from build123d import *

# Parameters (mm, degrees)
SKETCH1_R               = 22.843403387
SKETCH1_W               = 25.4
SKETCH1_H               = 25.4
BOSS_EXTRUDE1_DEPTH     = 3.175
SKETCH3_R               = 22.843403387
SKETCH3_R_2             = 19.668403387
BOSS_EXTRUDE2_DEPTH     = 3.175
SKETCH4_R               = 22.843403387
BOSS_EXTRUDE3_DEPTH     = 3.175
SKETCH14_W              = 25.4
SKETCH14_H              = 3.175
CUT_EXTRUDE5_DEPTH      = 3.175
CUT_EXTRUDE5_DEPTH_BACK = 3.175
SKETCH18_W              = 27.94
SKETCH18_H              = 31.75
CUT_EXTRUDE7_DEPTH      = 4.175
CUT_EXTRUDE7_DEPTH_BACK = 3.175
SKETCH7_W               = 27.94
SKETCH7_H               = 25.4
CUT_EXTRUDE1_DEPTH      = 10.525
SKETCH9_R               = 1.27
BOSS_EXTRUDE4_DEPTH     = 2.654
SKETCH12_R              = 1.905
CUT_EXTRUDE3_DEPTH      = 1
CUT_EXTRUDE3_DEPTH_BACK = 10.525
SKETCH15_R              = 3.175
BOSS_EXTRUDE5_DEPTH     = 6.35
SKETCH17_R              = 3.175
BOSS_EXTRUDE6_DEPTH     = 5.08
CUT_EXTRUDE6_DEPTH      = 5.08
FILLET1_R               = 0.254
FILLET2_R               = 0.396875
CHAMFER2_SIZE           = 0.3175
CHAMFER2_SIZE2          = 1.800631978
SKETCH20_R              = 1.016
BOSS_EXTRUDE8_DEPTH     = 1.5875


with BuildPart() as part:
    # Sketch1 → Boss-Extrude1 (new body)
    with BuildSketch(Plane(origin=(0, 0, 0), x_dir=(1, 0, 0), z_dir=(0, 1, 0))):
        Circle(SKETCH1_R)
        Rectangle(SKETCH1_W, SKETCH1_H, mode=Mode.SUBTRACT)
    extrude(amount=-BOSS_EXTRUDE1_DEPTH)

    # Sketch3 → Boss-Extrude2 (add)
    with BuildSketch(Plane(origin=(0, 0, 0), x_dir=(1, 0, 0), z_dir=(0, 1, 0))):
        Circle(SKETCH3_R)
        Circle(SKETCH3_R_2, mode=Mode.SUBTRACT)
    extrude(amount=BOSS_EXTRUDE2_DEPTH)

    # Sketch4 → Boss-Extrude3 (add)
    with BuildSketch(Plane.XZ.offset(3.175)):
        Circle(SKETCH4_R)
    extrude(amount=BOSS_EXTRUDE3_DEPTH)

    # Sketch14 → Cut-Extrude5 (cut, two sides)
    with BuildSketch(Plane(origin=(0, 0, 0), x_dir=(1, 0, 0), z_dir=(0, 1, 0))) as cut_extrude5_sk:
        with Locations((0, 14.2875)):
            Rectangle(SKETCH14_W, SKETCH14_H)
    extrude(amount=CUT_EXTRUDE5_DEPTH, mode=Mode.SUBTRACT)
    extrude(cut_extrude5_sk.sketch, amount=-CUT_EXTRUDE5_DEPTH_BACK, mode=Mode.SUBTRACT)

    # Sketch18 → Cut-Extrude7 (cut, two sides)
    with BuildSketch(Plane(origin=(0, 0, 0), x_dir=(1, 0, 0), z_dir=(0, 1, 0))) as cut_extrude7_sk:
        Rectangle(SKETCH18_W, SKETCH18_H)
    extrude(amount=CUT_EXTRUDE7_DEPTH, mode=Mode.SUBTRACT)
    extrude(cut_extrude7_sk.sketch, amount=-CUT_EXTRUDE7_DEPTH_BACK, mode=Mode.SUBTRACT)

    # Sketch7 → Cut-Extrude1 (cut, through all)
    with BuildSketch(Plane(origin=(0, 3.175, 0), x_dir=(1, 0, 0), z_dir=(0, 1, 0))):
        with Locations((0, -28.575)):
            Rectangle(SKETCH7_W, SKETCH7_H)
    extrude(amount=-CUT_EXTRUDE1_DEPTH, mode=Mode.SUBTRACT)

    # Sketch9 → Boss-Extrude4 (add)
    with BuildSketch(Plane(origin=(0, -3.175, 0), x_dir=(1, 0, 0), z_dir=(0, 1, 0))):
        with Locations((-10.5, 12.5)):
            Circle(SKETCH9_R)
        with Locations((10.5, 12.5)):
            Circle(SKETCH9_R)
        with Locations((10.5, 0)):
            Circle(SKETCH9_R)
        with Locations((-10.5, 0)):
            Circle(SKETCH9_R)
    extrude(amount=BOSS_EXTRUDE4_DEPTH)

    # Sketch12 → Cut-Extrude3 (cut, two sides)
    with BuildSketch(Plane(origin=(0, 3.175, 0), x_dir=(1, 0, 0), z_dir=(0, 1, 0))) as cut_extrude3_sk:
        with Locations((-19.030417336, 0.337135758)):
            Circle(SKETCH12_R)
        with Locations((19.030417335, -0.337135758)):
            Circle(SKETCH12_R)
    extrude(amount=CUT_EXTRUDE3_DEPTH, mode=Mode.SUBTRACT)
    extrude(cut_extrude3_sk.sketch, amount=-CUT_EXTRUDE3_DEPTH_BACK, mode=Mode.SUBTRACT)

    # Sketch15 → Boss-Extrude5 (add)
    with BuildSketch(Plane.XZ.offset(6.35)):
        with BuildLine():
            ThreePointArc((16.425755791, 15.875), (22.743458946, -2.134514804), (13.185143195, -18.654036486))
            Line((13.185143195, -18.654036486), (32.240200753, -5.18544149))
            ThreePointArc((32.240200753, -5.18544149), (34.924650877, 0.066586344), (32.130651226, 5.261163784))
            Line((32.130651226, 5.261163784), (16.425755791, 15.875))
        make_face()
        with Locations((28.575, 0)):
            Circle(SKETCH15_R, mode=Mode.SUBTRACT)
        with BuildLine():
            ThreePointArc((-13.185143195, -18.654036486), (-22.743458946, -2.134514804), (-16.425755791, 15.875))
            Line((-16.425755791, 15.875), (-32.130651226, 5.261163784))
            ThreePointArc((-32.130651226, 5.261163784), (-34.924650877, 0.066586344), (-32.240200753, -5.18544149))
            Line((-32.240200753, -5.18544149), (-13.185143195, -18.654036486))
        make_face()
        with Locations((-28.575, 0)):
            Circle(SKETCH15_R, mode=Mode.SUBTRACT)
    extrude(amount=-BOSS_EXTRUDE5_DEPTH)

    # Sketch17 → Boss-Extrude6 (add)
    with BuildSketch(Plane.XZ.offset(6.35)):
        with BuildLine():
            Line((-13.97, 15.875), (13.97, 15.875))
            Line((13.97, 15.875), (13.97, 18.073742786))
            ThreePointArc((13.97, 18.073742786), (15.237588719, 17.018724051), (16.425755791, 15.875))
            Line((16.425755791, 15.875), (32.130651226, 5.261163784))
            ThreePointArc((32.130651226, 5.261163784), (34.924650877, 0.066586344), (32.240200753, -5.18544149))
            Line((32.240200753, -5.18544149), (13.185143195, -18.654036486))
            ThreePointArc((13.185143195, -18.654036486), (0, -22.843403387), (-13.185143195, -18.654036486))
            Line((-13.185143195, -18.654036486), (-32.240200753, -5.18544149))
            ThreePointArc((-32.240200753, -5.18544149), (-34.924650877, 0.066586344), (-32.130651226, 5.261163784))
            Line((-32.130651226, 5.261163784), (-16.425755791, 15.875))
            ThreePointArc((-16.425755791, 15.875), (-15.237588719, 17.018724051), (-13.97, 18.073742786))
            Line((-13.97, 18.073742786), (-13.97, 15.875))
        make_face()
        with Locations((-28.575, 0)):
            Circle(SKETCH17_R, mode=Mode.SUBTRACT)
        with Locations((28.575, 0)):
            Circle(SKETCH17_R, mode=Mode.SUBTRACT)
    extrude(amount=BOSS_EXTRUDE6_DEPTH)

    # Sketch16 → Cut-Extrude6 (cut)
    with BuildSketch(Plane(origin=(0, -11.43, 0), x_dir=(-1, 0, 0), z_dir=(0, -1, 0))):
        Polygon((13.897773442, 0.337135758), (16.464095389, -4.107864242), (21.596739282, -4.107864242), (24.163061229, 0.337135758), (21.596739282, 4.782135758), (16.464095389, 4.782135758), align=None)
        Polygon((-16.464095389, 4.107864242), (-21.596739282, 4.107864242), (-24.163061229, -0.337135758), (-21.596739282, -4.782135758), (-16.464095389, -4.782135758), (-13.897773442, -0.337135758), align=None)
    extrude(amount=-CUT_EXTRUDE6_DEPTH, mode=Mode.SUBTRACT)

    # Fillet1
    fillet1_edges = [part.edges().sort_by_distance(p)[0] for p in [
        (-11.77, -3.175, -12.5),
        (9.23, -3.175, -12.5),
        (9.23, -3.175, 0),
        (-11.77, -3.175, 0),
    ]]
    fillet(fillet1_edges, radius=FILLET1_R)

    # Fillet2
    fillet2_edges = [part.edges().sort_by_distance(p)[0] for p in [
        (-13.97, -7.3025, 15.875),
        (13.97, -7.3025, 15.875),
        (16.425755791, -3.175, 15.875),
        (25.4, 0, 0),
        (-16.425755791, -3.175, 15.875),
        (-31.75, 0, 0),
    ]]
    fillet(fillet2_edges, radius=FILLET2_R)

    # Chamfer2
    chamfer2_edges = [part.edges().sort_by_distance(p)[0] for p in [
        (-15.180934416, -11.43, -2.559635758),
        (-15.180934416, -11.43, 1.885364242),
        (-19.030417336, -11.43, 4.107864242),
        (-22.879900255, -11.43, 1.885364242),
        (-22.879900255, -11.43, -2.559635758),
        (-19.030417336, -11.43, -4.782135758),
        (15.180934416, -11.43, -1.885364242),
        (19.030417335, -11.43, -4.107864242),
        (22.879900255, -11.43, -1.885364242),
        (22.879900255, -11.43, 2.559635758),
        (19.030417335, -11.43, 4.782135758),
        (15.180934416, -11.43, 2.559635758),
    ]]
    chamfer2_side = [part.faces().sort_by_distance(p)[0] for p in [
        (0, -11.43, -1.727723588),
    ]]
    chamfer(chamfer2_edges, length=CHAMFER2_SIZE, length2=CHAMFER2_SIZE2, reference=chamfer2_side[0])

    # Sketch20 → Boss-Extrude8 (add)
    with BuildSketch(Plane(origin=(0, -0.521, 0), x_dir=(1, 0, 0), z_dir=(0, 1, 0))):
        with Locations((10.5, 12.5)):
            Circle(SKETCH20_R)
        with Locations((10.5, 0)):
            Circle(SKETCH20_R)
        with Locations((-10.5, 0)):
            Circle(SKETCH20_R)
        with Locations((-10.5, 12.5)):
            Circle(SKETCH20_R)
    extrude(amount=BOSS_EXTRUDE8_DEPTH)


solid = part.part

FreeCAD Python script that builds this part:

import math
import FreeCAD as App
import Part
import Sketcher
from FreeCAD import Vector
Q = App.Units.Quantity


def edges_at(feature, points):
    """Names of the edges that pass closest to the given points."""
    edges = feature.Shape.Edges
    near = lambda p: min(range(len(edges)), key=lambda i: edges[i].distToShape(Part.Vertex(*p))[0])
    return sorted({f"Edge{near(p) + 1}" for p in points})


def add_polygon(sketch, points):
    """Adds a closed chain of lines whose ends are joined by coincident constraints."""
    first, n = sketch.GeometryCount, len(points)
    for a, b in zip(points, points[1:] + points[:1]):
        sketch.addGeometry(Part.LineSegment(App.Vector(*a, 0), App.Vector(*b, 0)), False)
    for i in range(n):
        sketch.addConstraint(Sketcher.Constraint("Coincident", first + i, 2, first + (i + 1) % n, 1))

doc = App.newDocument("Part")
params = doc.addObject("Spreadsheet::Sheet", "Params")
for row, (alias, value) in enumerate([
    ("sketch1_width", "1 in"),
    ("pad1_length", "0.125 in"),
    ("pad2_length", "0.125 in"),
    ("pad3_length", "0.125 in"),
    ("sketch4_width", "1 in"),
    ("sketch4_height", "0.125 in"),
    ("pocket1_length", "0.125 in"),
    ("pocket1_length2", "0.125 in"),
    ("sketch5_width", "1.1 in"),
    ("sketch5_height", "1.25 in"),
    ("pocket2_length", "4.175 mm"),
    ("pocket2_length2", "0.125 in"),
    ("sketch6_height", "1 in"),
    ("sketch6_width", "1.1 in"),
    ("sketch7_diameter", "0.1 in"),
    ("pad4_length", "2.654 mm"),
    ("sketch8_diameter", "0.15 in"),
    ("sketch9_diameter", "0.25 in"),
    ("sketch9_radius", "0.25 in"),
    ("pad5_length", "0.25 in"),
    ("sketch10_diameter", "0.25 in"),
    ("sketch10_radius", "0.25 in"),
    ("sketch10_width", "1.1 in"),
    ("pad6_length", "0.2 in"),
    ("pocket5_length", "0.2 in"),
    ("fillet_radius", "0.01 in"),
    ("fillet2_radius", "0.015625 in"),
    ("chamfer_size", "0.0125 in"),
    ("chamfer_size2", "1.800632 mm"),
    ("sketch12_diameter", "0.08 in"),
    ("pad7_length", "0.0625 in"),
], start=1):
    params.set(f"A{row}", alias)
    params.set(f"B{row}", "=" + value)
    params.setAlias(f"B{row}", alias)

body = doc.addObject("PartDesign::Body", "Body")

# Sketch on XZ plane
sketch1 = body.newObject("Sketcher::SketchObject", "Sketch")
sketch1.AttachmentSupport = (doc.getObject("XZ_Plane"), [""])
sketch1.MapMode = "FlatFace"
sketch1.addGeometry(Part.Circle(Vector(0, 0, 0), Vector(0, 0, 1), 23), False)  # 0
add_polygon(sketch1, [(13, 13), (-13, 13), (-13, -13), (13, -13)])  # lines 1-4
sketch1.addConstraint([
    Sketcher.Constraint("Horizontal", 1),
    Sketcher.Constraint("Vertical", 2),
    Sketcher.Constraint("Horizontal", 3),
    Sketcher.Constraint("Vertical", 4),
    Sketcher.Constraint("Coincident", 0, 3, -1, 1),
    Sketcher.Constraint("Symmetric", 1, 2, 3, 2, -1, 1),
    Sketcher.Constraint("Equal", 3, 2),
    Sketcher.Constraint("DistanceX", 1, 2, 1, 1, Q("1 in")),
    Sketcher.Constraint("Diameter", 0, 45.686807),
])
sketch1.setExpression("Constraints[11]", "Params.sketch1_width")
pad1 = body.newObject("PartDesign::Pad", "Pad")
pad1.Profile = sketch1
pad1.setExpression("Length", "Params.pad1_length")

# Sketch on XZ plane
sketch2 = body.newObject("Sketcher::SketchObject", "Sketch001")
sketch2.AttachmentSupport = (doc.getObject("XZ_Plane"), [""])
sketch2.MapMode = "FlatFace"
sketch2.addGeometry([
    Part.Circle(Vector(0, 0, 0), Vector(0, 0, 1), 23),
    Part.Circle(Vector(0, 0, 0), Vector(0, 0, 1), 20),
], False)
sketch2.addConstraint([
    Sketcher.Constraint("Coincident", 0, 3, -1, 1),
    Sketcher.Constraint("Coincident", 1, 3, -1, 1),
    Sketcher.Constraint("Diameter", 0, 45.686807),
    Sketcher.Constraint("Diameter", 1, 39.336807),
])
pad2 = body.newObject("PartDesign::Pad", "Pad001")
pad2.Profile = sketch2
pad2.setExpression("Length", "Params.pad2_length")
pad2.Reversed = True

# Sketch on XZ plane
sketch3 = body.newObject("Sketcher::SketchObject", "Sketch002")
sketch3.AttachmentSupport = (doc.getObject("XZ_Plane"), [""])
sketch3.MapMode = "FlatFace"
sketch3.AttachmentOffset = App.Placement(Vector(0, 0, 0.125 * 25.4), App.Rotation())
sketch3.addGeometry(Part.Circle(Vector(0, 0, 0), Vector(0, 0, 1), 23), False)
sketch3.addConstraint([
    Sketcher.Constraint("Coincident", 0, 3, -1, 1),
    Sketcher.Constraint("Diameter", 0, 45.686807),
])
pad3 = body.newObject("PartDesign::Pad", "Pad002")
pad3.Profile = sketch3
pad3.setExpression("Length", "Params.pad3_length")

# Sketch on XZ plane
sketch4 = body.newObject("Sketcher::SketchObject", "Sketch003")
sketch4.AttachmentSupport = (doc.getObject("XZ_Plane"), [""])
sketch4.MapMode = "FlatFace"
add_polygon(sketch4, [(-12.7, -15.9), (-12.7, -12.7), (12.7, -12.7), (12.7, -15.9)])  # lines 0-3
sketch4.addConstraint([
    Sketcher.Constraint("Vertical", 0),
    Sketcher.Constraint("Horizontal", 1),
    Sketcher.Constraint("Vertical", 2),
    Sketcher.Constraint("Horizontal", 3),
    Sketcher.Constraint("DistanceX", 1, 1, 1, 2, Q("1 in")),
    Sketcher.Constraint("DistanceX", 0, 2, -1, 1, Q("0.5 in")),
    Sketcher.Constraint("DistanceY", 0, 2, -1, 1, Q("0.5 in")),
    Sketcher.Constraint("DistanceY", 0, 1, 0, 2, Q("0.125 in")),
])
sketch4.setExpression("Constraints[8]", "Params.sketch4_width")
sketch4.setExpression("Constraints[11]", "Params.sketch4_height")
pocket1 = body.newObject("PartDesign::Pocket", "Pocket")
pocket1.Profile = sketch4
pocket1.Type = "TwoLengths"
pocket1.setExpression("Length", "Params.pocket1_length")
pocket1.setExpression("Length2", "Params.pocket1_length2")

# Sketch on XZ plane
sketch5 = body.newObject("Sketcher::SketchObject", "Sketch004")
sketch5.AttachmentSupport = (doc.getObject("XZ_Plane"), [""])
sketch5.MapMode = "FlatFace"
add_polygon(sketch5, [(-14, -16), (-14, 16), (14, 16), (14, -16)])  # lines 0-3
sketch5.addConstraint([
    Sketcher.Constraint("Vertical", 0),
    Sketcher.Constraint("Horizontal", 1),
    Sketcher.Constraint("Vertical", 2),
    Sketcher.Constraint("Horizontal", 3),
    Sketcher.Constraint("Symmetric", 0, 2, 2, 2, -1, 1),
    Sketcher.Constraint("DistanceX", 1, 1, 1, 2, Q("1.1 in")),
    Sketcher.Constraint("DistanceY", 0, 1, 0, 2, Q("1.25 in")),
])
sketch5.setExpression("Constraints[9]", "Params.sketch5_width")
sketch5.setExpression("Constraints[10]", "Params.sketch5_height")
pocket2 = body.newObject("PartDesign::Pocket", "Pocket001")
pocket2.Profile = sketch5
pocket2.Type = "TwoLengths"
pocket2.setExpression("Length", "Params.pocket2_length")
pocket2.setExpression("Length2", "Params.pocket2_length2")

# Sketch on XZ plane
sketch6 = body.newObject("Sketcher::SketchObject", "Sketch005")
sketch6.AttachmentSupport = (doc.getObject("XZ_Plane"), [""])
sketch6.MapMode = "FlatFace"
sketch6.AttachmentOffset = App.Placement(Vector(0, 0, -0.125 * 25.4), App.Rotation())
add_polygon(sketch6, [(-14, 16), (-14, 41), (14, 41), (14, 16)])  # lines 0-3
sketch6.addConstraint([
    Sketcher.Constraint("Vertical", 0),
    Sketcher.Constraint("Horizontal", 1),
    Sketcher.Constraint("Vertical", 2),
    Sketcher.Constraint("Horizontal", 3),
    Sketcher.Constraint("DistanceY", 0, 1, 0, 2, Q("1 in")),
    Sketcher.Constraint("DistanceX", 1, 1, 1, 2, Q("1.1 in")),
    Sketcher.Constraint("DistanceX", 0, 2, -1, 1, Q("0.55 in")),
    Sketcher.Constraint("DistanceY", -1, 1, 0, 2, Q("1.625 in")),
])
sketch6.setExpression("Constraints[8]", "Params.sketch6_height")
sketch6.setExpression("Constraints[9]", "Params.sketch6_width")
pocket3 = body.newObject("PartDesign::Pocket", "Pocket002")
pocket3.Profile = sketch6
pocket3.Type = "ThroughAll"
pocket3.Reversed = True

# Sketch on XZ plane
sketch7 = body.newObject("Sketcher::SketchObject", "Sketch006")
sketch7.AttachmentSupport = (doc.getObject("XZ_Plane"), [""])
sketch7.MapMode = "FlatFace"
sketch7.AttachmentOffset = App.Placement(Vector(0, 0, 0.125 * 25.4), App.Rotation())
sketch7.addGeometry([
    Part.Circle(Vector(-10.5, -12.5, 0), Vector(0, 0, 1), 1.3),
    Part.Circle(Vector(10.5, -12.5, 0), Vector(0, 0, 1), 1.3),
    Part.Circle(Vector(10.5, 0, 0), Vector(0, 0, 1), 1.3),
    Part.Circle(Vector(-10.5, 0, 0), Vector(0, 0, 1), 1.3),
], False)
sketch7.addConstraint([
    Sketcher.Constraint("Equal", 0, 1),
    Sketcher.Constraint("Equal", 1, 2),
    Sketcher.Constraint("Equal", 2, 3),
    Sketcher.Constraint("Symmetric", 2, 3, 3, 3, -1, 1),
    Sketcher.Constraint("Symmetric", 0, 3, 1, 3, -2),
    Sketcher.Constraint("PointOnObject", 2, 3, -1),
    Sketcher.Constraint("Vertical", 1, 3, 2, 3),
    Sketcher.Constraint("Diameter", 0, Q("0.1 in")),
    Sketcher.Constraint("DistanceX", 0, 3, -1, 1, 10.5),
    Sketcher.Constraint("DistanceY", 0, 3, -1, 1, 12.5),
])
sketch7.setExpression("Constraints[7]", "Params.sketch7_diameter")
pad4 = body.newObject("PartDesign::Pad", "Pad003")
pad4.Profile = sketch7
pad4.setExpression("Length", "Params.pad4_length")
pad4.Reversed = True

# Sketch on XZ plane
sketch8 = body.newObject("Sketcher::SketchObject", "Sketch007")
sketch8.AttachmentSupport = (doc.getObject("XZ_Plane"), [""])
sketch8.MapMode = "FlatFace"
sketch8.AttachmentOffset = App.Placement(Vector(0, 0, -0.125 * 25.4), App.Rotation())
sketch8.addGeometry([
    Part.Circle(Vector(-19, -0.3, 0), Vector(0, 0, 1), 1.9),
    Part.Circle(Vector(19, 0.3, 0), Vector(0, 0, 1), 1.9),
], False)
sketch8.addConstraint([
    Sketcher.Constraint("Equal", 0, 1),
    Sketcher.Constraint("Symmetric", 0, 3, 1, 3, -1, 1),
    Sketcher.Constraint("Diameter", 0, Q("0.15 in")),
    Sketcher.Constraint("DistanceY", 0, 3, 1, 3, 0.674272),
    Sketcher.Constraint("DistanceX", 0, 3, -1, 1, 19.030417),
])
sketch8.setExpression("Constraints[2]", "Params.sketch8_diameter")
pocket4 = body.newObject("PartDesign::Pocket", "Pocket003")
pocket4.Profile = sketch8
pocket4.Type = "ThroughAll"
pocket4.Midplane = True

# Sketch on XZ plane
sketch9 = body.newObject("Sketcher::SketchObject", "Sketch008")
sketch9.AttachmentSupport = (doc.getObject("XZ_Plane"), [""])
sketch9.MapMode = "FlatFace"
sketch9.AttachmentOffset = App.Placement(Vector(0, 0, 0.25 * 25.4), App.Rotation())
sketch9.addGeometry([
    Part.ArcOfCircle(Part.Circle(Vector(0, 0, 0), Vector(0, 0, 1), 22.8), math.radians(-55), math.radians(44)),  # 0
    Part.LineSegment(Vector(13.2, -18.7, 0), Vector(32.2, -5.2, 0)),  # 1
    Part.ArcOfCircle(Part.Circle(Vector(28.6, 0, 0), Vector(0, 0, 1), 6.4), math.radians(-55), math.radians(56)),  # 2
    Part.LineSegment(Vector(32.1, 5.3, 0), Vector(16.4, 15.9, 0)),  # 3
    Part.Circle(Vector(28.6, 0, 0), Vector(0, 0, 1), 3.2),  # 4
    Part.ArcOfCircle(Part.Circle(Vector(0, 0, 0), Vector(0, 0, 1), 22.8), math.radians(136), math.radians(235)),  # 5
    Part.LineSegment(Vector(-16.4, 15.9, 0), Vector(-32.1, 5.3, 0)),  # 6
    Part.ArcOfCircle(Part.Circle(Vector(-28.6, 0, 0), Vector(0, 0, 1), 6.4), math.radians(124), math.radians(235)),  # 7
    Part.LineSegment(Vector(-32.2, -5.2, 0), Vector(-13.2, -18.7, 0)),  # 8
    Part.Circle(Vector(-28.6, 0, 0), Vector(0, 0, 1), 3.2),  # 9
], False)
sketch9.addConstraint([
    Sketcher.Constraint("Tangent", 0, 1, 1, 1),
    Sketcher.Constraint("Tangent", 1, 2, 2, 1),
    Sketcher.Constraint("Tangent", 2, 2, 3, 1),
    Sketcher.Constraint("Coincident", 3, 2, 0, 2),
    Sketcher.Constraint("Coincident", 5, 1, 6, 1),
    Sketcher.Constraint("Tangent", 6, 2, 7, 1),
    Sketcher.Constraint("Tangent", 7, 2, 8, 1),
    Sketcher.Constraint("Tangent", 8, 2, 5, 2),
    Sketcher.Constraint("Coincident", 0, 3, -1, 1),
    Sketcher.Constraint("Coincident", 5, 3, -1, 1),
    Sketcher.Constraint("Coincident", 4, 3, 2, 3),
    Sketcher.Constraint("Coincident", 9, 3, 7, 3),
    Sketcher.Constraint("Equal", 0, 5),
    Sketcher.Constraint("Equal", 2, 7),
    Sketcher.Constraint("Equal", 4, 9),
    Sketcher.Constraint("Symmetric", 2, 3, 7, 3, -1, 1),
    Sketcher.Constraint("Symmetric", 2, 2, 6, 2, -2),
    Sketcher.Constraint("Diameter", 4, Q("0.25 in")),
    Sketcher.Constraint("Radius", 2, Q("0.25 in")),
    Sketcher.Constraint("DistanceX", 7, 3, 2, 3, Q("2.25 in")),
    Sketcher.Constraint("DistanceY", -1, 1, 3, 2, Q("0.625 in")),
    Sketcher.Constraint("DistanceX", -1, 1, 0, 1, Q("0.5191001 in")),
])
sketch9.setExpression("Constraints[17]", "Params.sketch9_diameter")
sketch9.setExpression("Constraints[18]", "Params.sketch9_radius")
pad5 = body.newObject("PartDesign::Pad", "Pad004")
pad5.Profile = sketch9
pad5.setExpression("Length", "Params.pad5_length")
pad5.Reversed = True

# Sketch on XZ plane
sketch10 = body.newObject("Sketcher::SketchObject", "Sketch009")
sketch10.AttachmentSupport = (doc.getObject("XZ_Plane"), [""])
sketch10.MapMode = "FlatFace"
sketch10.AttachmentOffset = App.Placement(Vector(0, 0, 0.25 * 25.4), App.Rotation())
sketch10.addGeometry([
    Part.LineSegment(Vector(14, 15.9, 0), Vector(-14, 15.9, 0)),  # 0
    Part.LineSegment(Vector(-14, 15.9, 0), Vector(-14, 18.1, 0)),  # 1
    Part.ArcOfCircle(Part.Circle(Vector(0, 0, 0), Vector(0, 0, 1), 22.8), math.radians(127.7), math.radians(135.98)),  # 2
    Part.LineSegment(Vector(-16.4, 15.9, 0), Vector(-32.1, 5.3, 0)),  # 3
    Part.ArcOfCircle(Part.Circle(Vector(-28.6, 0, 0), Vector(0, 0, 1), 6.4), math.radians(124), math.radians(235)),  # 4
    Part.LineSegment(Vector(-32.2, -5.2, 0), Vector(-13.2, -18.7, 0)),  # 5
    Part.ArcOfCircle(Part.Circle(Vector(0, 0, 0), Vector(0, 0, 1), 22.8), math.radians(-125), math.radians(-55)),  # 6
    Part.LineSegment(Vector(13.2, -18.7, 0), Vector(32.2, -5.2, 0)),  # 7
    Part.ArcOfCircle(Part.Circle(Vector(28.6, 0, 0), Vector(0, 0, 1), 6.4), math.radians(-55), math.radians(56)),  # 8
    Part.LineSegment(Vector(32.1, 5.3, 0), Vector(16.4, 15.9, 0)),  # 9
    Part.ArcOfCircle(Part.Circle(Vector(0, 0, 0), Vector(0, 0, 1), 22.8), math.radians(44.02), math.radians(52.3)),  # 10
    Part.LineSegment(Vector(14, 18.1, 0), Vector(14, 15.9, 0)),  # 11
    Part.Circle(Vector(28.6, 0, 0), Vector(0, 0, 1), 3.2),  # 12
    Part.Circle(Vector(-28.6, 0, 0), Vector(0, 0, 1), 3.2),  # 13
], False)
sketch10.addConstraint([
    Sketcher.Constraint("Coincident", 0, 2, 1, 1),
    Sketcher.Constraint("Coincident", 1, 2, 2, 1),
    Sketcher.Constraint("Coincident", 2, 2, 3, 1),
    Sketcher.Constraint("Tangent", 3, 2, 4, 1),
    Sketcher.Constraint("Tangent", 4, 2, 5, 1),
    Sketcher.Constraint("Tangent", 5, 2, 6, 1),
    Sketcher.Constraint("Tangent", 6, 2, 7, 1),
    Sketcher.Constraint("Tangent", 7, 2, 8, 1),
    Sketcher.Constraint("Tangent", 8, 2, 9, 1),
    Sketcher.Constraint("Coincident", 9, 2, 10, 1),
    Sketcher.Constraint("Coincident", 10, 2, 11, 1),
    Sketcher.Constraint("Coincident", 11, 2, 0, 1),
    Sketcher.Constraint("Horizontal", 0),
    Sketcher.Constraint("Vertical", 1),
    Sketcher.Constraint("Vertical", 11),
    Sketcher.Constraint("Coincident", 2, 3, -1, 1),
    Sketcher.Constraint("Coincident", 6, 3, -1, 1),
    Sketcher.Constraint("Coincident", 10, 3, -1, 1),
    Sketcher.Constraint("Coincident", 12, 3, 8, 3),
    Sketcher.Constraint("Coincident", 13, 3, 4, 3),
    Sketcher.Constraint("Equal", 2, 6),
    Sketcher.Constraint("Equal", 4, 8),
    Sketcher.Constraint("Equal", 6, 10),
    Sketcher.Constraint("Equal", 12, 13),
    Sketcher.Constraint("Symmetric", 4, 3, 8, 3, -1, 1),
    Sketcher.Constraint("Symmetric", 3, 2, 8, 2, -2),
    Sketcher.Constraint("Horizontal", 0, 2, 2, 2),
    Sketcher.Constraint("Horizontal", 1, 2, 10, 2),
    Sketcher.Constraint("Diameter", 12, Q("0.25 in")),
    Sketcher.Constraint("Radius", 4, Q("0.25 in")),
    Sketcher.Constraint("DistanceX", 0, 2, 0, 1, Q("1.1 in")),
    Sketcher.Constraint("DistanceX", 4, 3, 8, 3, Q("2.25 in")),
    Sketcher.Constraint("DistanceY", -1, 1, 0, 2, Q("0.625 in")),
    Sketcher.Constraint("DistanceX", 5, 2, -1, 1, Q("0.5191001 in")),
])
sketch10.setExpression("Constraints[28]", "Params.sketch10_diameter")
sketch10.setExpression("Constraints[29]", "Params.sketch10_radius")
sketch10.setExpression("Constraints[30]", "Params.sketch10_width")
pad6 = body.newObject("PartDesign::Pad", "Pad005")
pad6.Profile = sketch10
pad6.setExpression("Length", "Params.pad6_length")

# Sketch on XZ plane
sketch11 = body.newObject("Sketcher::SketchObject", "Sketch010")
sketch11.AttachmentSupport = (doc.getObject("XZ_Plane"), [""])
sketch11.MapMode = "FlatFace"
sketch11.AttachmentOffset = App.Placement(Vector(0, 0, 0.45 * 25.4), App.Rotation())
add_polygon(sketch11, [(-14, 0), (-16, 4), (-22, 4), (-24, 0), (-22, -5), (-16, -5)])  # lines 0-5
add_polygon(sketch11, [(16, -4), (22, -4), (24, 0), (22, 5), (16, 5), (14, 0)])  # lines 6-11
sketch11.addConstraint([
    Sketcher.Constraint("Horizontal", 1),
    Sketcher.Constraint("Horizontal", 4),
    Sketcher.Constraint("Horizontal", 6),
    Sketcher.Constraint("Horizontal", 9),
    Sketcher.Constraint("Symmetric", 1, 2, 6, 2, -1, 1),
    Sketcher.Constraint("Symmetric", 2, 2, 7, 2, -1, 1),
    Sketcher.Constraint("Symmetric", 3, 2, 8, 2, -1, 1),
    Sketcher.Constraint("Symmetric", 5, 2, 10, 2, -1, 1),
    Sketcher.Constraint("Parallel", 0, 3),
    Sketcher.Constraint("Parallel", 2, 5),
    Sketcher.Constraint("Parallel", 7, 10),
    Sketcher.Constraint("Parallel", 8, 11),
    Sketcher.Constraint("Horizontal", 2, 2, 5, 2),
    Sketcher.Constraint("Vertical", 1, 2, 3, 2),
    Sketcher.Constraint("Vertical", 0, 2, 4, 2),
    Sketcher.Constraint("Angle", 0, Q("120 deg")),
    Sketcher.Constraint("DistanceY", 3, 2, 1, 2, Q("0.35 in")),
    Sketcher.Constraint("DistanceX", 1, 2, 7, 2, 45.759801),
    Sketcher.Constraint("DistanceX", 1, 2, 1, 1, 5.132644),
    Sketcher.Constraint("DistanceY", 6, 2, 5, 2, 3.770728),
])
pocket5 = body.newObject("PartDesign::Pocket", "Pocket004")
pocket5.Profile = sketch11
pocket5.setExpression("Length", "Params.pocket5_length")
doc.recompute()

fillet = body.newObject("PartDesign::Fillet", "Fillet")
fillet.Base = (pocket5, edges_at(pocket5, [
    (-11.77, -3.175, -12.5),
    (9.23, -3.175, -12.5),
    (9.23, -3.175, 0),
    (-11.77, -3.175, 0),
]))
fillet.setExpression("Radius", "Params.fillet_radius")
doc.recompute()

fillet2 = body.newObject("PartDesign::Fillet", "Fillet001")
fillet2.Base = (fillet, edges_at(fillet, [
    (-13.97, -7.303, 15.875),
    (13.97, -7.303, 15.875),
    (16.426, -3.175, 15.875),
    (25.4, 0, 0),
    (-16.426, -3.175, 15.875),
    (-31.75, 0, 0),
]))
fillet2.setExpression("Radius", "Params.fillet2_radius")
doc.recompute()

chamfer = body.newObject("PartDesign::Chamfer", "Chamfer")
chamfer.Base = (fillet2, edges_at(fillet2, [
    (-15.181, -11.43, -2.56),
    (-15.181, -11.43, 1.885),
    (-19.03, -11.43, 4.108),
    (-22.88, -11.43, 1.885),
    (-22.88, -11.43, -2.56),
    (-19.03, -11.43, -4.782),
    (15.181, -11.43, -1.885),
    (19.03, -11.43, -4.108),
    (22.88, -11.43, -1.885),
    (22.88, -11.43, 2.56),
    (19.03, -11.43, 4.782),
    (15.181, -11.43, 2.56),
]))
chamfer.ChamferType = "Two distances"
chamfer.setExpression("Size", "Params.chamfer_size")
chamfer.setExpression("Size2", "Params.chamfer_size2")

# Sketch on XZ plane
sketch12 = body.newObject("Sketcher::SketchObject", "Sketch011")
sketch12.AttachmentSupport = (doc.getObject("XZ_Plane"), [""])
sketch12.MapMode = "FlatFace"
sketch12.AttachmentOffset = App.Placement(Vector(0, 0, 0.521), App.Rotation())
sketch12.addGeometry([
    Part.Circle(Vector(10.5, -12.5, 0), Vector(0, 0, 1), 1),
    Part.Circle(Vector(10.5, 0, 0), Vector(0, 0, 1), 1),
    Part.Circle(Vector(-10.5, 0, 0), Vector(0, 0, 1), 1),
    Part.Circle(Vector(-10.5, -12.5, 0), Vector(0, 0, 1), 1),
], False)
sketch12.addConstraint([
    Sketcher.Constraint("Equal", 0, 1),
    Sketcher.Constraint("Equal", 1, 2),
    Sketcher.Constraint("Equal", 2, 3),
    Sketcher.Constraint("Symmetric", 1, 3, 2, 3, -1, 1),
    Sketcher.Constraint("Symmetric", 0, 3, 3, 3, -2),
    Sketcher.Constraint("PointOnObject", 1, 3, -1),
    Sketcher.Constraint("Vertical", 0, 3, 1, 3),
    Sketcher.Constraint("Diameter", 0, Q("0.08 in")),
    Sketcher.Constraint("DistanceX", -1, 1, 0, 3, 10.5),
    Sketcher.Constraint("DistanceY", 0, 3, -1, 1, 12.5),
])
sketch12.setExpression("Constraints[7]", "Params.sketch12_diameter")
pad7 = body.newObject("PartDesign::Pad", "Pad006")
pad7.Profile = sketch12
pad7.setExpression("Length", "Params.pad7_length")
pad7.Reversed = True

doc.recompute()
